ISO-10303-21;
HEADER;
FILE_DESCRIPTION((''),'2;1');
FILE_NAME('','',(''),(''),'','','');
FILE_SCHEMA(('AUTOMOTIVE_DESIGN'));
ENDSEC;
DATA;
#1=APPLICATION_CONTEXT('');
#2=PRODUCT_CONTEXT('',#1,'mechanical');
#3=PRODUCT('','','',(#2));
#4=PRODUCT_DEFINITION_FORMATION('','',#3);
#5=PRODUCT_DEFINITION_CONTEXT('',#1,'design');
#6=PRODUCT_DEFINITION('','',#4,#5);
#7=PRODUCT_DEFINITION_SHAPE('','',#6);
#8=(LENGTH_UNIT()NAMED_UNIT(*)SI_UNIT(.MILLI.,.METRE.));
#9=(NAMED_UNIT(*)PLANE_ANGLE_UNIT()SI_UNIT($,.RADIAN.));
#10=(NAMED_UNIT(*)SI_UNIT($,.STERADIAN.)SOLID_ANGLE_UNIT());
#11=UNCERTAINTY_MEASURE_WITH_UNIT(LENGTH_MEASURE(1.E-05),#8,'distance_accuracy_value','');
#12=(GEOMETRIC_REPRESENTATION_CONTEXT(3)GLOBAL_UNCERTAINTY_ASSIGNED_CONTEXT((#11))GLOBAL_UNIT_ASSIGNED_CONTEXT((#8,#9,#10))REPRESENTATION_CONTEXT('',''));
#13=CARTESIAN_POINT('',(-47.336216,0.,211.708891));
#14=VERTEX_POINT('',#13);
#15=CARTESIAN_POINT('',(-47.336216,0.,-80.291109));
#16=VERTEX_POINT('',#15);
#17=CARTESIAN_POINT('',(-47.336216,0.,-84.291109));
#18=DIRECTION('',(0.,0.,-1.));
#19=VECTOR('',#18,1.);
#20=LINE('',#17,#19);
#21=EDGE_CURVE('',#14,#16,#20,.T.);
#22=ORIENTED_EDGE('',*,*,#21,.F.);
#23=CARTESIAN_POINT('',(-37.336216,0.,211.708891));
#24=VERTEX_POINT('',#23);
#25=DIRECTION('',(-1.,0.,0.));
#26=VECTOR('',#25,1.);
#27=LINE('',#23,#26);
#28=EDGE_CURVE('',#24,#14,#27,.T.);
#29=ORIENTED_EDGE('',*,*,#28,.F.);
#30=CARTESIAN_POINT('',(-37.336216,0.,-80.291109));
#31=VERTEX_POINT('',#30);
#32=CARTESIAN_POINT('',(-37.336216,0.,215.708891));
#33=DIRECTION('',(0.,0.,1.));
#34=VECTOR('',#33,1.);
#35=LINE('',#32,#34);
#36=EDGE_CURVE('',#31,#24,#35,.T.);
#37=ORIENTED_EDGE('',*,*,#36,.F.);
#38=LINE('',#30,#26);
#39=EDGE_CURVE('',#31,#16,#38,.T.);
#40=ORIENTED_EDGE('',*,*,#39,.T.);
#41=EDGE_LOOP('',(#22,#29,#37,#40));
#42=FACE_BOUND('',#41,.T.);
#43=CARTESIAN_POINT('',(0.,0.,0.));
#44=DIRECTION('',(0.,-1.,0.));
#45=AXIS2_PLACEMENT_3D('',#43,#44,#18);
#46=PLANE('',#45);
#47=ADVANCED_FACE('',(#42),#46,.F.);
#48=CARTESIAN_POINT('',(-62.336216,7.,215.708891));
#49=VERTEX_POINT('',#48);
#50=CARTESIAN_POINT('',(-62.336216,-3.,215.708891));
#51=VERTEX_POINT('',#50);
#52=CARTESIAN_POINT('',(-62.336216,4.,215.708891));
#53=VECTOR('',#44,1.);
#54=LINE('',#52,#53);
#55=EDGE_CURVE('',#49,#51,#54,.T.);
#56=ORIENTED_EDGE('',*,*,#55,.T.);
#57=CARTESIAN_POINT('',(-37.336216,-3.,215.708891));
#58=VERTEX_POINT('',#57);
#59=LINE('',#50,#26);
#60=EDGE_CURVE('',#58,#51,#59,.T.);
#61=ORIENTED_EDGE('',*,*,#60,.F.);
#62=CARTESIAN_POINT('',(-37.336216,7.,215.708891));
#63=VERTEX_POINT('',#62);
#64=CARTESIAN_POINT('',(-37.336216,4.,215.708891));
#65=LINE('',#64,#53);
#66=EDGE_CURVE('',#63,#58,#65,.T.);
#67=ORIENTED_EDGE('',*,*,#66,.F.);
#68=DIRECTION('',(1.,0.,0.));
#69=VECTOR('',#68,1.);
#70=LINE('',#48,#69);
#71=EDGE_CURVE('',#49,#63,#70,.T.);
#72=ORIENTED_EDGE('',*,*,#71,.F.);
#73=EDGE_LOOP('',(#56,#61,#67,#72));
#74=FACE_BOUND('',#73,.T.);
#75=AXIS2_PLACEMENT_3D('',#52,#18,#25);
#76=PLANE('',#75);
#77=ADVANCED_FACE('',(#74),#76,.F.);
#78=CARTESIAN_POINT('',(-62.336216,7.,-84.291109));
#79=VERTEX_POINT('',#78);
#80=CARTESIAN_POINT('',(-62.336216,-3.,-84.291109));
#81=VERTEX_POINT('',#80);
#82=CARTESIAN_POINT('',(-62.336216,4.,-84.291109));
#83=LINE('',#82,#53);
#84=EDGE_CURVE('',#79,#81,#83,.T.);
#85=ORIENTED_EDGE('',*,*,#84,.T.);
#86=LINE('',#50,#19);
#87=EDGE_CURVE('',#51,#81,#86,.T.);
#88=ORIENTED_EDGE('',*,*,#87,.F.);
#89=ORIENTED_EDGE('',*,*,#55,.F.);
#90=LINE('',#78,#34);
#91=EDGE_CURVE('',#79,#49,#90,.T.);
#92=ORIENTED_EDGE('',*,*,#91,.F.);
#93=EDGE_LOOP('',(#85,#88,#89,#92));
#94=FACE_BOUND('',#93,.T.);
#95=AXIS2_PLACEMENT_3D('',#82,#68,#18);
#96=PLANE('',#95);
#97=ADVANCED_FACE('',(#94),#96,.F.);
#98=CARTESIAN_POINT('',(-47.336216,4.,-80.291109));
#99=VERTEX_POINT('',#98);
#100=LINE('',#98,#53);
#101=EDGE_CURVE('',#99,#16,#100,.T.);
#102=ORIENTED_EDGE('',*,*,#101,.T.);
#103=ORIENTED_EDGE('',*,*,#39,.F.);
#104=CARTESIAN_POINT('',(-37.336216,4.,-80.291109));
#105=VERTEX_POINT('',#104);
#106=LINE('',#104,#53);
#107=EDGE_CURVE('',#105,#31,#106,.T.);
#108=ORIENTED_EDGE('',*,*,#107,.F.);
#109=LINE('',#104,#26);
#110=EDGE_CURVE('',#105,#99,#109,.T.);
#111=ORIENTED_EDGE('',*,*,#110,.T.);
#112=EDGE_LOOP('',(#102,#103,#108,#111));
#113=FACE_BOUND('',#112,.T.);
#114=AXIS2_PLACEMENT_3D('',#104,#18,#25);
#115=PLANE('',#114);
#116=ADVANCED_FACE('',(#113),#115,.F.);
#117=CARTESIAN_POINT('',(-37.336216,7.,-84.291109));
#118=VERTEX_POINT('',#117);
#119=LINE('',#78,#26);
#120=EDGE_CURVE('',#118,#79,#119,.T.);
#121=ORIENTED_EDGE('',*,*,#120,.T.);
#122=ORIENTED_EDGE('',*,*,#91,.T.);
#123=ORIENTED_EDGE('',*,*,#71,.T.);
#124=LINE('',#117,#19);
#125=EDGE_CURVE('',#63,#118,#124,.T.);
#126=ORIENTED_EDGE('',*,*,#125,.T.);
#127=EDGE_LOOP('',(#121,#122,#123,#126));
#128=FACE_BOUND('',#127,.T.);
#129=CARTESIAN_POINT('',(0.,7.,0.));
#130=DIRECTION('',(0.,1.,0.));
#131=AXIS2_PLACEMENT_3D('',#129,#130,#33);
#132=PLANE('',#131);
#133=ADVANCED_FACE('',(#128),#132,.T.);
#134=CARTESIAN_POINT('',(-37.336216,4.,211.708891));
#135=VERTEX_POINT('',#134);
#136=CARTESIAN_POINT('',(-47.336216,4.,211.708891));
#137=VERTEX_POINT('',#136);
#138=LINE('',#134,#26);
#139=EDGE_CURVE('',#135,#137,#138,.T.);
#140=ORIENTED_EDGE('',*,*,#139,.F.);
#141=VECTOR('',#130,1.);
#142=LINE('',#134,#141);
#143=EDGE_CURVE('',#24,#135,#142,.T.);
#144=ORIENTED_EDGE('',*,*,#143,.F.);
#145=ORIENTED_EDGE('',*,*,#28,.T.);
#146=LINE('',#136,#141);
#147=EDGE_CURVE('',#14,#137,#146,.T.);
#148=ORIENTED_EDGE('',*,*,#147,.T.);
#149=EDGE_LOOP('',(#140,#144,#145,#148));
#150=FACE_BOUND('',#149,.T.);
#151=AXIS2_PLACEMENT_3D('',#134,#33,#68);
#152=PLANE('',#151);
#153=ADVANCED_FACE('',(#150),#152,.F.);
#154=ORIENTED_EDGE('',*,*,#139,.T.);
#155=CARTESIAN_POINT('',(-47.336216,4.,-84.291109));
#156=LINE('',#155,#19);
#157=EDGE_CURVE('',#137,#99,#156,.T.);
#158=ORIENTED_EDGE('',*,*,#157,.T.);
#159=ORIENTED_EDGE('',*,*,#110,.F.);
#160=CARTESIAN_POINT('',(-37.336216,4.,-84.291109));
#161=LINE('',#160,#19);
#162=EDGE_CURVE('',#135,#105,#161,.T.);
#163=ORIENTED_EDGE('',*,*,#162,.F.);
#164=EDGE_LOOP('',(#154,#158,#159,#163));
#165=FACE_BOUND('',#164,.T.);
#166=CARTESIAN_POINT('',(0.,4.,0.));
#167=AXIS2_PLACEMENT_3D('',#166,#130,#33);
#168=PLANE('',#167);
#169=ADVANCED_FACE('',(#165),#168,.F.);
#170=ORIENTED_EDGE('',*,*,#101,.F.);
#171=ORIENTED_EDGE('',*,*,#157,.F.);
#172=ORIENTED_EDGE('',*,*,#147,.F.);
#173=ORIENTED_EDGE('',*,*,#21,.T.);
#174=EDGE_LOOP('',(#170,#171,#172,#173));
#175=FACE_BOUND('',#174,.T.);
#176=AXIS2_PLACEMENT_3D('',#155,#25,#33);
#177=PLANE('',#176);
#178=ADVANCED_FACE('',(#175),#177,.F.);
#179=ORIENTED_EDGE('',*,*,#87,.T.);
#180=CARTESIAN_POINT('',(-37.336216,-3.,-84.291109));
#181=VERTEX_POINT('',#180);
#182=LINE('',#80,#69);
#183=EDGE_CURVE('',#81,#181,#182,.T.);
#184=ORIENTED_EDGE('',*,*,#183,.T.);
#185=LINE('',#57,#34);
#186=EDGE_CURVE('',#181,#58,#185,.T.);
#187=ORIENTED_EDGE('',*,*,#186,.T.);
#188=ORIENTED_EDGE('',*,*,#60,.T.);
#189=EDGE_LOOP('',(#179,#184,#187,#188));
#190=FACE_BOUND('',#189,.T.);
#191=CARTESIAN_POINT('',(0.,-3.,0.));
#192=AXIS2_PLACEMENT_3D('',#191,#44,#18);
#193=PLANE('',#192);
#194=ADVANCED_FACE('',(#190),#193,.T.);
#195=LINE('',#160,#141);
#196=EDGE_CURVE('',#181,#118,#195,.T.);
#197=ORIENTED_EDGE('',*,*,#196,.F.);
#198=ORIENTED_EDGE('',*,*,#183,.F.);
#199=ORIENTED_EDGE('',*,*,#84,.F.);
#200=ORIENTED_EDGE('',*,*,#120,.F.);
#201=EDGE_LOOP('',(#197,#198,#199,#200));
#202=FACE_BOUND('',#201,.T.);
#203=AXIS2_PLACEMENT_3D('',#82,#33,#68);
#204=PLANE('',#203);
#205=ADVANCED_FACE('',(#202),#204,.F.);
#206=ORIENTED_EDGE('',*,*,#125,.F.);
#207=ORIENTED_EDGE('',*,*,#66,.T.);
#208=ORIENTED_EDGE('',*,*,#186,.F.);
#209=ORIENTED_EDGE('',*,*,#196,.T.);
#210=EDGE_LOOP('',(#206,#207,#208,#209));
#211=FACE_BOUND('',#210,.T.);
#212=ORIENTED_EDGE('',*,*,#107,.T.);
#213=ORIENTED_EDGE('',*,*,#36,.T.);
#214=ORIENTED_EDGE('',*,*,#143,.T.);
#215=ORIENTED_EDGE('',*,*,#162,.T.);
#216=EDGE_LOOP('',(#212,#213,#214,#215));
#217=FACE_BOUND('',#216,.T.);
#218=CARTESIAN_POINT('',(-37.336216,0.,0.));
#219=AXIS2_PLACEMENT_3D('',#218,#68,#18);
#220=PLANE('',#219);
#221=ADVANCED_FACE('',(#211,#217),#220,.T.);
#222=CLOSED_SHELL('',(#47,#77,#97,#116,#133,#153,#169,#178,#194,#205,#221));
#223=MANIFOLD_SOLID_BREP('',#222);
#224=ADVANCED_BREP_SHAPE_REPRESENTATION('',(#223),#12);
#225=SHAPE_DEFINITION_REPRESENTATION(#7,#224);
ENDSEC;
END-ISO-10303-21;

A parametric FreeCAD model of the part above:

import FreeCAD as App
import Part
import Sketcher
from FreeCAD import Vector


def add_polygon(sketch, points):
    """Adds a closed chain of lines whose ends are joined by coincident constraints."""
    first, n = sketch.GeometryCount, len(points)
    for a, b in zip(points, points[1:] + points[:1]):
        sketch.addGeometry(Part.LineSegment(App.Vector(*a, 0), App.Vector(*b, 0)), False)
    for i in range(n):
        sketch.addConstraint(Sketcher.Constraint("Coincident", first + i, 2, first + (i + 1) % n, 1))

doc = App.newDocument("Part")
body = doc.addObject("PartDesign::Body", "Body")

# Sketch on XZ plane
sketch1 = doc.addObject("Sketcher::SketchObject", "Sketch")
body.addObject(sketch1)
sketch1.AttachmentSupport = (doc.XZ_Plane, [""])
sketch1.MapMode = "FlatFace"
add_polygon(sketch1, [(-62, -84), (-62, 216), (-47, 216), (-47, -84)])  # lines 0-3
sketch1.addConstraint([
    Sketcher.Constraint("Vertical", 0),
    Sketcher.Constraint("Horizontal", 1),
    Sketcher.Constraint("Vertical", 2),
    Sketcher.Constraint("Horizontal", 3),
    Sketcher.Constraint("DistanceX", 1, 1, 1, 2, 15.0),
    Sketcher.Constraint("DistanceY", 0, 1, 0, 2, 300.0),
    Sketcher.Constraint("DistanceY", -1, 1, 0, 2, 215.708891),
    Sketcher.Constraint("DistanceX", 0, 2, -1, 1, 62.336216),
])
pad1 = doc.addObject("PartDesign::Pad", "Pad")
body.addObject(pad1)
pad1.Profile = sketch1
pad1.Length = 4
pad1.Reversed = True

# Sketch on YZ plane
sketch2 = doc.addObject("Sketcher::SketchObject", "Sketch001")
body.addObject(sketch2)
sketch2.AttachmentSupport = (doc.YZ_Plane, [""])
sketch2.MapMode = "FlatFace"
sketch2.AttachmentOffset = App.Placement(Vector(0, 0, -47.336216), App.Rotation())
add_polygon(sketch2, [(4, 215.7), (0, 215.7), (0, 211.7), (4, 211.7)])  # lines 0-3
add_polygon(sketch2, [(4, -80.3), (0, -80.3), (0, -84.3), (4, -84.3)])  # lines 4-7
sketch2.addConstraint([
    Sketcher.Constraint("Horizontal", 0),
    Sketcher.Constraint("Vertical", 1),
    Sketcher.Constraint("Horizontal", 2),
    Sketcher.Constraint("Vertical", 3),
    Sketcher.Constraint("Horizontal", 4),
    Sketcher.Constraint("Vertical", 5),
    Sketcher.Constraint("Horizontal", 6),
    Sketcher.Constraint("Vertical", 7),
    Sketcher.Constraint("PointOnObject", 0, 2, -2),
    Sketcher.Constraint("PointOnObject", 4, 2, -2),
    Sketcher.Constraint("Vertical", 3, 2, 6, 2),
    Sketcher.Constraint("Equal", 6, 1),
    Sketcher.Constraint("Equal", 3, 5),
    Sketcher.Constraint("DistanceX", 0, 2, 0, 1, 4.0),
    Sketcher.Constraint("DistanceY", 4, 2, 1, 2, 292.0),
    Sketcher.Constraint("DistanceY", -1, 1, 0, 2, 215.708891),
])
pad2 = doc.addObject("PartDesign::Pad", "Pad001")
body.addObject(pad2)
pad2.Profile = sketch2
pad2.Length = 10

# Sketch on XZ plane
sketch3 = doc.addObject("Sketcher::SketchObject", "Sketch002")
body.addObject(sketch3)
sketch3.AttachmentSupport = (doc.XZ_Plane, [""])
sketch3.MapMode = "FlatFace"
sketch3.AttachmentOffset = App.Placement(Vector(0, 0, -4), App.Rotation())
add_polygon(sketch3, [(-62, -84), (-62, 216), (-37, 216), (-37, -84)])  # lines 0-3
sketch3.addConstraint([
    Sketcher.Constraint("Vertical", 0),
    Sketcher.Constraint("Horizontal", 1),
    Sketcher.Constraint("Vertical", 2),
    Sketcher.Constraint("Horizontal", 3),
    Sketcher.Constraint("DistanceX", 1, 1, 1, 2, 25.0),
    Sketcher.Constraint("DistanceY", 0, 1, 0, 2, 300.0),
    Sketcher.Constraint("DistanceY", -1, 1, 0, 2, 215.708891),
    Sketcher.Constraint("DistanceX", 0, 2, -1, 1, 62.336216),
])
pad3 = doc.addObject("PartDesign::Pad", "Pad002")
body.addObject(pad3)
pad3.Profile = sketch3
pad3.Length = 3
pad3.Reversed = True

# Sketch on XZ plane
sketch4 = doc.addObject("Sketcher::SketchObject", "Sketch003")
body.addObject(sketch4)
sketch4.AttachmentSupport = (doc.XZ_Plane, [""])
sketch4.MapMode = "FlatFace"
add_polygon(sketch4, [(-62, 216), (-62, -84), (-37, -84), (-37, 216)])  # lines 0-3
sketch4.addConstraint([
    Sketcher.Constraint("Vertical", 0),
    Sketcher.Constraint("Horizontal", 1),
    Sketcher.Constraint("Vertical", 2),
    Sketcher.Constraint("Horizontal", 3),
    Sketcher.Constraint("DistanceX", 1, 1, 1, 2, 25.0),
    Sketcher.Constraint("DistanceY", 0, 2, 0, 1, 300.0),
    Sketcher.Constraint("DistanceY", 0, 2, -1, 1, 84.291109),
    Sketcher.Constraint("DistanceX", 0, 2, -1, 1, 62.336216),
])
pad4 = doc.addObject("PartDesign::Pad", "Pad003")
body.addObject(pad4)
pad4.Profile = sketch4
pad4.Length = 3

doc.recompute()
